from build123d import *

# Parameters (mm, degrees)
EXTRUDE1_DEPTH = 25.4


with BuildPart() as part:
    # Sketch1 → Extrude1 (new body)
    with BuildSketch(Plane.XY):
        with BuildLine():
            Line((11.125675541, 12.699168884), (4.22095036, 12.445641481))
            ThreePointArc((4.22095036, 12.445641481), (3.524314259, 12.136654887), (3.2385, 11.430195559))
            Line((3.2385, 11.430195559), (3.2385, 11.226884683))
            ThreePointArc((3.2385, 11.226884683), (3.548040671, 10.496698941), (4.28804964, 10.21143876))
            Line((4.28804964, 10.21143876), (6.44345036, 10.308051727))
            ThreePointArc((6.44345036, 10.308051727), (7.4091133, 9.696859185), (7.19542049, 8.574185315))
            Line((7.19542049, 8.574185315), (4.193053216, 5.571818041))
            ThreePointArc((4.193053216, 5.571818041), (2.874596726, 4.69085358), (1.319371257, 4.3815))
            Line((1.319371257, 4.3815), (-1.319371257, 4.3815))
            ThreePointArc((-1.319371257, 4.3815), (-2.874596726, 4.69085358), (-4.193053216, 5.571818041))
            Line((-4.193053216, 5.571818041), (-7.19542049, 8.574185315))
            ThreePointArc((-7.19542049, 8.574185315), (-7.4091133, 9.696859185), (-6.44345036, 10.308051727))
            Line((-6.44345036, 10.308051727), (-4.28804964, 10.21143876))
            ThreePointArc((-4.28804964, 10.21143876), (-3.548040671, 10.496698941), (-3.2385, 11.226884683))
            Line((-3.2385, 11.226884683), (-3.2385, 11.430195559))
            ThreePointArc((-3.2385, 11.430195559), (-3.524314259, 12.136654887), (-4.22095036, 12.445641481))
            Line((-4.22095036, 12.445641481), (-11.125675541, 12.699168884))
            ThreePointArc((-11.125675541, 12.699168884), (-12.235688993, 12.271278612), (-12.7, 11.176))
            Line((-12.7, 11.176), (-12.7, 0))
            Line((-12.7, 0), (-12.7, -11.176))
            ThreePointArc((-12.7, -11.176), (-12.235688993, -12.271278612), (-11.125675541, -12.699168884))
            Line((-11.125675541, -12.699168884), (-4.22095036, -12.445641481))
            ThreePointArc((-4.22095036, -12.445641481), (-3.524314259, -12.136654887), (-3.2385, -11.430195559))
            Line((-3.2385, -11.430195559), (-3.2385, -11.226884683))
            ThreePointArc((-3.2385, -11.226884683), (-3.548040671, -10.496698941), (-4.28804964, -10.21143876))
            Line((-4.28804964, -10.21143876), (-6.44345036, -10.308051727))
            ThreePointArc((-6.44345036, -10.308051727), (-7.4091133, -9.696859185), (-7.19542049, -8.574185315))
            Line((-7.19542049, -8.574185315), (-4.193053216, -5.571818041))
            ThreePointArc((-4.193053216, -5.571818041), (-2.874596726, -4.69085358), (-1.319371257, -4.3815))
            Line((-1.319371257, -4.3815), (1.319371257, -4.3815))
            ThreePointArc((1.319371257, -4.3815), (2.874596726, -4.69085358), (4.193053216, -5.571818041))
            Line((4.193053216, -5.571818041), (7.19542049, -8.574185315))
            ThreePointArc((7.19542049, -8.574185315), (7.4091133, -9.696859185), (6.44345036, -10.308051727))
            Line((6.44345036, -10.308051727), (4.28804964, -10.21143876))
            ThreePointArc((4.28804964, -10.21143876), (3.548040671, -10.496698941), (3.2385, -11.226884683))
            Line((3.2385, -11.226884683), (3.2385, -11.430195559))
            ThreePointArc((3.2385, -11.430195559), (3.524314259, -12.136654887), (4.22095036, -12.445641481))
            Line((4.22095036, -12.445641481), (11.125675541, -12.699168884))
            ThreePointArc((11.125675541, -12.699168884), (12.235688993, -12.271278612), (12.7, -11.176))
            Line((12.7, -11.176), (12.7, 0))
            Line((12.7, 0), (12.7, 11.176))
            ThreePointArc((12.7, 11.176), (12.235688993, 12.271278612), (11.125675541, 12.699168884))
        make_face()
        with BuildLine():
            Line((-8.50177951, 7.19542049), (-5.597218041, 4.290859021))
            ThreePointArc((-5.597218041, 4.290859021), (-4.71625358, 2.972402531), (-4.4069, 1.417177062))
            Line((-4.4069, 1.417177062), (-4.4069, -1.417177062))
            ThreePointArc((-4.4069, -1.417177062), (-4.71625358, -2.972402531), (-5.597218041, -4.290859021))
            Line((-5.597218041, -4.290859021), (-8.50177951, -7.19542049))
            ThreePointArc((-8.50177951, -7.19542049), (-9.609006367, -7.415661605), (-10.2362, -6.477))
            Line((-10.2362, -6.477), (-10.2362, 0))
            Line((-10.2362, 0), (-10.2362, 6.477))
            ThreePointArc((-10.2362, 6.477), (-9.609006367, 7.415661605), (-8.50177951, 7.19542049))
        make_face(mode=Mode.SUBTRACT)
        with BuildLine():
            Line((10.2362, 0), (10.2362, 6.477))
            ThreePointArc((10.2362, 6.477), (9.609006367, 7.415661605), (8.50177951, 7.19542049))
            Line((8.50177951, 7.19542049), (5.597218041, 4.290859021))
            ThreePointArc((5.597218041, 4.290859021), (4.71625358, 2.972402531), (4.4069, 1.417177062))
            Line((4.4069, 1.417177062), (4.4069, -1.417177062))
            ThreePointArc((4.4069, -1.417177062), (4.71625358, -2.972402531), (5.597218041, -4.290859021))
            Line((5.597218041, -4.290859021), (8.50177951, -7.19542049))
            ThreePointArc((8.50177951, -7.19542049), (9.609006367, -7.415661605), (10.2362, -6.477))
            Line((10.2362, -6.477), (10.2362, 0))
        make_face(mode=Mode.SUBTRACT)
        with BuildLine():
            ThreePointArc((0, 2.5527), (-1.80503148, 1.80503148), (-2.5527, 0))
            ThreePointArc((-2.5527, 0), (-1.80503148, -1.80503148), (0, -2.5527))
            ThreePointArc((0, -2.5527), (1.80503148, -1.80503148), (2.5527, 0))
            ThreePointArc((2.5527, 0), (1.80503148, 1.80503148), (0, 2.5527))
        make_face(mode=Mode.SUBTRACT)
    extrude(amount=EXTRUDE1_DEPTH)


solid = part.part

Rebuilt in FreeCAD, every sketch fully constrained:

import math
import FreeCAD as App
import Part
import Sketcher

V = App.Vector
Q = App.Units.Quantity

doc = App.newDocument("Part")
body = doc.addObject("PartDesign::Body", "Body")

# Sketch on XY plane
sketch1 = body.newObject("Sketcher::SketchObject", "Sketch")
sketch1.AttachmentSupport = (doc.getObject("XY_Plane"), [""])
sketch1.MapMode = "FlatFace"
sketch1.addGeometry([
    Part.LineSegment(V(11.13, 12.7, 0), V(4.22, 12.45, 0)),  # 0
    Part.ArcOfCircle(Part.Circle(V(4.25, 11.43, 0), V(0, 0, 1), 1.02), math.radians(92), math.radians(180)),  # 1
    Part.LineSegment(V(3.24, 11.43, 0), V(3.24, 11.23, 0)),  # 2
    Part.ArcOfCircle(Part.Circle(V(4.25, 11.23, 0), V(0, 0, 1), 1.02), math.radians(180), math.radians(272)),  # 3
    Part.LineSegment(V(4.29, 10.21, 0), V(6.44, 10.31, 0)),  # 4
    Part.ArcOfCircle(Part.Circle(V(6.48, 9.29, 0), V(0, 0, 1), 1.02), math.radians(-45), math.radians(92)),  # 5
    Part.LineSegment(V(7.2, 8.57, 0), V(4.19, 5.57, 0)),  # 6
    Part.ArcOfCircle(Part.Circle(V(1.32, 8.45, 0), V(0, 0, 1), 4.06), math.radians(-90), math.radians(-45)),  # 7
    Part.LineSegment(V(1.32, 4.38, 0), V(-1.32, 4.38, 0)),  # 8
    Part.ArcOfCircle(Part.Circle(V(-1.32, 8.45, 0), V(0, 0, 1), 4.06), math.radians(-135), math.radians(-90)),  # 9
    Part.LineSegment(V(-4.19, 5.57, 0), V(-7.2, 8.57, 0)),  # 10
    Part.ArcOfCircle(Part.Circle(V(-6.48, 9.29, 0), V(0, 0, 1), 1.02), math.radians(88), math.radians(225)),  # 11
    Part.LineSegment(V(-6.44, 10.31, 0), V(-4.29, 10.21, 0)),  # 12
    Part.ArcOfCircle(Part.Circle(V(-4.25, 11.23, 0), V(0, 0, 1), 1.02), math.radians(-92), math.radians(0)),  # 13
    Part.LineSegment(V(-3.24, 11.23, 0), V(-3.24, 11.43, 0)),  # 14
    Part.ArcOfCircle(Part.Circle(V(-4.25, 11.43, 0), V(0, 0, 1), 1.02), math.radians(0), math.radians(88)),  # 15
    Part.LineSegment(V(-4.22, 12.45, 0), V(-11.13, 12.7, 0)),  # 16
    Part.ArcOfCircle(Part.Circle(V(-11.18, 11.18, 0), V(0, 0, 1), 1.52), math.radians(88), math.radians(180)),  # 17
    Part.LineSegment(V(-12.7, 11.18, 0), V(-12.7, -11.18, 0)),  # 18
    Part.ArcOfCircle(Part.Circle(V(-11.18, -11.18, 0), V(0, 0, 1), 1.52), math.radians(180), math.radians(272)),  # 19
    Part.LineSegment(V(-11.13, -12.7, 0), V(-4.22, -12.45, 0)),  # 20
    Part.ArcOfCircle(Part.Circle(V(-4.25, -11.43, 0), V(0, 0, 1), 1.02), math.radians(-88), math.radians(0)),  # 21
    Part.LineSegment(V(-3.24, -11.43, 0), V(-3.24, -11.23, 0)),  # 22
    Part.ArcOfCircle(Part.Circle(V(-4.25, -11.23, 0), V(0, 0, 1), 1.02), math.radians(0), math.radians(92)),  # 23
    Part.LineSegment(V(-4.29, -10.21, 0), V(-6.44, -10.31, 0)),  # 24
    Part.ArcOfCircle(Part.Circle(V(-6.48, -9.29, 0), V(0, 0, 1), 1.02), math.radians(135), math.radians(272)),  # 25
    Part.LineSegment(V(-7.2, -8.57, 0), V(-4.19, -5.57, 0)),  # 26
    Part.ArcOfCircle(Part.Circle(V(-1.32, -8.45, 0), V(0, 0, 1), 4.06), math.radians(90), math.radians(135)),  # 27
    Part.LineSegment(V(-1.32, -4.38, 0), V(1.32, -4.38, 0)),  # 28
    Part.ArcOfCircle(Part.Circle(V(1.32, -8.45, 0), V(0, 0, 1), 4.06), math.radians(45), math.radians(90)),  # 29
    Part.LineSegment(V(4.19, -5.57, 0), V(7.2, -8.57, 0)),  # 30
    Part.ArcOfCircle(Part.Circle(V(6.48, -9.29, 0), V(0, 0, 1), 1.02), math.radians(-92), math.radians(45)),  # 31
    Part.LineSegment(V(6.44, -10.31, 0), V(4.29, -10.21, 0)),  # 32
    Part.ArcOfCircle(Part.Circle(V(4.25, -11.23, 0), V(0, 0, 1), 1.02), math.radians(88), math.radians(180)),  # 33
    Part.LineSegment(V(3.24, -11.23, 0), V(3.24, -11.43, 0)),  # 34
    Part.ArcOfCircle(Part.Circle(V(4.25, -11.43, 0), V(0, 0, 1), 1.02), math.radians(-180), math.radians(-92)),  # 35
    Part.LineSegment(V(4.22, -12.45, 0), V(11.13, -12.7, 0)),  # 36
    Part.ArcOfCircle(Part.Circle(V(11.18, -11.18, 0), V(0, 0, 1), 1.52), math.radians(-92), math.radians(0)),  # 37
    Part.LineSegment(V(12.7, -11.18, 0), V(12.7, 11.18, 0)),  # 38
    Part.ArcOfCircle(Part.Circle(V(11.18, 11.18, 0), V(0, 0, 1), 1.52), math.radians(0), math.radians(92)),  # 39
    Part.ArcOfCircle(Part.Circle(V(-9.22, 6.48, 0), V(0, 0, 1), 1.02), math.radians(45), math.radians(180)),  # 40
    Part.LineSegment(V(-8.5, 7.2, 0), V(-5.6, 4.29, 0)),  # 41
    Part.ArcOfCircle(Part.Circle(V(-8.47, 1.42, 0), V(0, 0, 1), 4.06), math.radians(0), math.radians(45)),  # 42
    Part.LineSegment(V(-4.41, 1.42, 0), V(-4.41, -1.42, 0)),  # 43
    Part.ArcOfCircle(Part.Circle(V(-8.47, -1.42, 0), V(0, 0, 1), 4.06), math.radians(-45), math.radians(0)),  # 44
    Part.LineSegment(V(-5.6, -4.29, 0), V(-8.5, -7.2, 0)),  # 45
    Part.ArcOfCircle(Part.Circle(V(-9.22, -6.48, 0), V(0, 0, 1), 1.02), math.radians(180), math.radians(315)),  # 46
    Part.LineSegment(V(-10.24, -6.48, 0), V(-10.24, 6.48, 0)),  # 47
    Part.ArcOfCircle(Part.Circle(V(0, 0, 0), V(0, 0, 1), 2.55), math.radians(90), math.radians(180)),  # 48
    Part.ArcOfCircle(Part.Circle(V(0, 0, 0), V(0, 0, 1), 2.55), math.radians(0), math.radians(90)),  # 49
    Part.ArcOfCircle(Part.Circle(V(0, 0, 0), V(0, 0, 1), 2.55), math.radians(-90), math.radians(0)),  # 50
    Part.ArcOfCircle(Part.Circle(V(0, 0, 0), V(0, 0, 1), 2.55), math.radians(-180), math.radians(-90)),  # 51
    Part.ArcOfCircle(Part.Circle(V(9.22, 6.48, 0), V(0, 0, 1), 1.02), math.radians(0), math.radians(135)),  # 52
    Part.LineSegment(V(10.24, 6.48, 0), V(10.24, -6.48, 0)),  # 53
    Part.ArcOfCircle(Part.Circle(V(9.22, -6.48, 0), V(0, 0, 1), 1.02), math.radians(-135), math.radians(0)),  # 54
    Part.LineSegment(V(8.5, -7.2, 0), V(5.6, -4.29, 0)),  # 55
    Part.ArcOfCircle(Part.Circle(V(8.47, -1.42, 0), V(0, 0, 1), 4.06), math.radians(-180), math.radians(-135)),  # 56
    Part.LineSegment(V(4.41, -1.42, 0), V(4.41, 1.42, 0)),  # 57
    Part.ArcOfCircle(Part.Circle(V(8.47, 1.42, 0), V(0, 0, 1), 4.06), math.radians(135), math.radians(180)),  # 58
    Part.LineSegment(V(5.6, 4.29, 0), V(8.5, 7.2, 0)),  # 59
], False)
sketch1.addConstraint([
    Sketcher.Constraint("Coincident", 0, 2, 1, 1),
    Sketcher.Constraint("Tangent", 1, 2, 2, 1),
    Sketcher.Constraint("Tangent", 2, 2, 3, 1),
    Sketcher.Constraint("Coincident", 3, 2, 4, 1),
    Sketcher.Constraint("Coincident", 4, 2, 5, 2),
    Sketcher.Constraint("Tangent", 5, 1, 6, 1),
    Sketcher.Constraint("Tangent", 6, 2, 7, 2),
    Sketcher.Constraint("Tangent", 7, 1, 8, 1),
    Sketcher.Constraint("Tangent", 8, 2, 9, 2),
    Sketcher.Constraint("Tangent", 9, 1, 10, 1),
    Sketcher.Constraint("Tangent", 10, 2, 11, 2),
    Sketcher.Constraint("Coincident", 11, 1, 12, 1),
    Sketcher.Constraint("Coincident", 12, 2, 13, 1),
    Sketcher.Constraint("Tangent", 13, 2, 14, 1),
    Sketcher.Constraint("Tangent", 14, 2, 15, 1),
    Sketcher.Constraint("Coincident", 15, 2, 16, 1),
    Sketcher.Constraint("Coincident", 16, 2, 17, 1),
    Sketcher.Constraint("Tangent", 17, 2, 18, 1),
    Sketcher.Constraint("Tangent", 18, 2, 19, 1),
    Sketcher.Constraint("Coincident", 19, 2, 20, 1),
    Sketcher.Constraint("Coincident", 20, 2, 21, 1),
    Sketcher.Constraint("Tangent", 21, 2, 22, 1),
    Sketcher.Constraint("Tangent", 22, 2, 23, 1),
    Sketcher.Constraint("Coincident", 23, 2, 24, 1),
    Sketcher.Constraint("Coincident", 24, 2, 25, 2),
    Sketcher.Constraint("Tangent", 25, 1, 26, 1),
    Sketcher.Constraint("Tangent", 26, 2, 27, 2),
    Sketcher.Constraint("Tangent", 27, 1, 28, 1),
    Sketcher.Constraint("Tangent", 28, 2, 29, 2),
    Sketcher.Constraint("Tangent", 29, 1, 30, 1),
    Sketcher.Constraint("Tangent", 30, 2, 31, 2),
    Sketcher.Constraint("Coincident", 31, 1, 32, 1),
    Sketcher.Constraint("Coincident", 32, 2, 33, 1),
    Sketcher.Constraint("Tangent", 33, 2, 34, 1),
    Sketcher.Constraint("Tangent", 34, 2, 35, 1),
    Sketcher.Constraint("Coincident", 35, 2, 36, 1),
    Sketcher.Constraint("Coincident", 36, 2, 37, 1),
    Sketcher.Constraint("Tangent", 37, 2, 38, 1),
    Sketcher.Constraint("Tangent", 38, 2, 39, 1),
    Sketcher.Constraint("Coincident", 39, 2, 0, 1),
    Sketcher.Constraint("Tangent", 40, 1, 41, 1),
    Sketcher.Constraint("Tangent", 41, 2, 42, 2),
    Sketcher.Constraint("Tangent", 42, 1, 43, 1),
    Sketcher.Constraint("Tangent", 43, 2, 44, 2),
    Sketcher.Constraint("Tangent", 44, 1, 45, 1),
    Sketcher.Constraint("Tangent", 45, 2, 46, 2),
    Sketcher.Constraint("Tangent", 46, 1, 47, 1),
    Sketcher.Constraint("Tangent", 47, 2, 40, 2),
    Sketcher.Constraint("Tangent", 48, 1, 49, 2),
    Sketcher.Constraint("Tangent", 49, 1, 50, 2),
    Sketcher.Constraint("Tangent", 50, 1, 51, 2),
    Sketcher.Constraint("Tangent", 51, 1, 48, 2),
    Sketcher.Constraint("Tangent", 52, 1, 53, 1),
    Sketcher.Constraint("Tangent", 53, 2, 54, 2),
    Sketcher.Constraint("Tangent", 54, 1, 55, 1),
    Sketcher.Constraint("Tangent", 55, 2, 56, 2),
    Sketcher.Constraint("Tangent", 56, 1, 57, 1),
    Sketcher.Constraint("Tangent", 57, 2, 58, 2),
    Sketcher.Constraint("Tangent", 58, 1, 59, 1),
    Sketcher.Constraint("Tangent", 59, 2, 52, 2),
    Sketcher.Constraint("Vertical", 2),
    Sketcher.Constraint("Horizontal", 8),
    Sketcher.Constraint("Vertical", 14),
    Sketcher.Constraint("Vertical", 18),
    Sketcher.Constraint("Vertical", 22),
    Sketcher.Constraint("Horizontal", 28),
    Sketcher.Constraint("Vertical", 34),
    Sketcher.Constraint("Vertical", 38),
    Sketcher.Constraint("Vertical", 43),
    Sketcher.Constraint("Vertical", 47),
    Sketcher.Constraint("Vertical", 53),
    Sketcher.Constraint("Vertical", 57),
    Sketcher.Constraint("Coincident", 48, 3, -1, 1),
    Sketcher.Constraint("Equal", 1, 3),
    Sketcher.Constraint("Equal", 3, 5),
    Sketcher.Constraint("Equal", 7, 9),
    Sketcher.Constraint("Equal", 5, 11),
    Sketcher.Constraint("Equal", 11, 13),
    Sketcher.Constraint("Equal", 13, 15),
    Sketcher.Constraint("Equal", 17, 19),
    Sketcher.Constraint("Equal", 15, 21),
    Sketcher.Constraint("Equal", 21, 23),
    Sketcher.Constraint("Equal", 23, 25),
    Sketcher.Constraint("Equal", 9, 27),
    Sketcher.Constraint("Equal", 27, 29),
    Sketcher.Constraint("Equal", 25, 31),
    Sketcher.Constraint("Equal", 31, 33),
    Sketcher.Constraint("Equal", 33, 35),
    Sketcher.Constraint("Equal", 19, 37),
    Sketcher.Constraint("Equal", 37, 39),
    Sketcher.Constraint("Equal", 35, 40),
    Sketcher.Constraint("Equal", 29, 42),
    Sketcher.Constraint("Equal", 42, 44),
    Sketcher.Constraint("Equal", 40, 46),
    Sketcher.Constraint("Equal", 48, 49),
    Sketcher.Constraint("Equal", 46, 52),
    Sketcher.Constraint("Equal", 52, 54),
    Sketcher.Constraint("Equal", 44, 56),
    Sketcher.Constraint("Equal", 56, 58),
    Sketcher.Constraint("Symmetric", 1, 3, 21, 3, -1, 1),
    Sketcher.Constraint("Symmetric", 5, 3, 25, 3, -1, 1),
    Sketcher.Constraint("Symmetric", 7, 3, 27, 3, -1, 1),
    Sketcher.Constraint("Symmetric", 11, 3, 31, 3, -1, 1),
    Sketcher.Constraint("Symmetric", 13, 3, 33, 3, -1, 1),
    Sketcher.Constraint("Symmetric", 17, 3, 37, 3, -1, 1),
    Sketcher.Constraint("Symmetric", 46, 3, 52, 3, -1, 1),
    Sketcher.Constraint("Symmetric", 42, 3, 56, 3, -1, 1),
    Sketcher.Constraint("Symmetric", 3, 2, 23, 2, -1, 1),
    Sketcher.Constraint("Symmetric", 15, 2, 35, 2, -1, 1),
    Sketcher.Constraint("Symmetric", 19, 2, 39, 2, -1, 1),
    Sketcher.Constraint("Symmetric", 5, 3, 11, 3, -2),
    Sketcher.Constraint("Symmetric", 3, 3, 13, 3, -2),
    Sketcher.Constraint("Symmetric", 0, 2, 15, 2, -2),
    Sketcher.Constraint("Symmetric", 19, 2, 36, 2, -2),
    Sketcher.Constraint("Symmetric", 45, 2, 54, 1, -2),
    Sketcher.Constraint("Symmetric", 41, 2, 58, 1, -2),
    Sketcher.Constraint("PointOnObject", 48, 1, -2),
    Sketcher.Constraint("PointOnObject", 49, 1, -1),
    Sketcher.Constraint("PointOnObject", 50, 1, -2),
    Sketcher.Constraint("PointOnObject", 51, 1, -1),
    Sketcher.Constraint("Perpendicular", 6, 10),
    Sketcher.Constraint("Parallel", 4, 24),
    Sketcher.Constraint("Perpendicular", 26, 30),
    Sketcher.Constraint("Parallel", 12, 32),
    Sketcher.Constraint("Parallel", 30, 41),
    Sketcher.Constraint("Perpendicular", 41, 45),
    Sketcher.Constraint("Horizontal", 4, 2, 11, 1),
    Sketcher.Constraint("Horizontal", 3, 2, 12, 2),
    Sketcher.Constraint("Horizontal", 24, 2, 31, 1),
    Sketcher.Constraint("Horizontal", 20, 2, 35, 2),
    Sketcher.Constraint("Horizontal", 16, 2, 39, 2),
    Sketcher.Constraint("Radius", 1, Q("0.04 in")),
    Sketcher.Constraint("Radius", 7, Q("0.16 in")),
    Sketcher.Constraint("Radius", 17, Q("0.06 in")),
    Sketcher.Constraint("DistanceY", 18, 2, 18, 1, Q("0.88 in")),
    Sketcher.Constraint("DistanceY", 47, 1, 47, 2, Q("0.51 in")),
    Sketcher.Constraint("DistanceX", 17, 2, -1, 1, Q("0.5 in")),
    Sketcher.Constraint("Radius", 48, Q("0.1005 in")),
    Sketcher.Constraint("DistanceX", -1, 1, 5, 3, Q("0.255 in")),
    Sketcher.Constraint("DistanceX", 40, 3, -1, 1, Q("0.363 in")),
    Sketcher.Constraint("DistanceX", -1, 1, 1, 3, Q("0.1675 in")),
    Sketcher.Constraint("DistanceY", -1, 1, 7, 3, Q("0.3325 in")),
    Sketcher.Constraint("DistanceX", 42, 3, -1, 1, Q("0.3335 in")),
    Sketcher.Constraint("DistanceY", 2, 2, 2, 1, 0.203311),
    Sketcher.Constraint("Distance", 0, 6.909378),
    Sketcher.Constraint("Distance", 6, 4.245989),
    Sketcher.Constraint("DistanceX", -1, 1, 0, 2, 4.22095),
    Sketcher.Constraint("DistanceY", -1, 1, 0, 2, 12.445641),
    Sketcher.Constraint("DistanceX", -1, 1, 3, 2, 4.28805),
    Sketcher.Constraint("DistanceX", -1, 1, 4, 2, 6.44345),
])
pad1 = body.newObject("PartDesign::Pad", "Pad")
pad1.Profile = sketch1
pad1.Length = Q("1 in")

doc.recompute()
